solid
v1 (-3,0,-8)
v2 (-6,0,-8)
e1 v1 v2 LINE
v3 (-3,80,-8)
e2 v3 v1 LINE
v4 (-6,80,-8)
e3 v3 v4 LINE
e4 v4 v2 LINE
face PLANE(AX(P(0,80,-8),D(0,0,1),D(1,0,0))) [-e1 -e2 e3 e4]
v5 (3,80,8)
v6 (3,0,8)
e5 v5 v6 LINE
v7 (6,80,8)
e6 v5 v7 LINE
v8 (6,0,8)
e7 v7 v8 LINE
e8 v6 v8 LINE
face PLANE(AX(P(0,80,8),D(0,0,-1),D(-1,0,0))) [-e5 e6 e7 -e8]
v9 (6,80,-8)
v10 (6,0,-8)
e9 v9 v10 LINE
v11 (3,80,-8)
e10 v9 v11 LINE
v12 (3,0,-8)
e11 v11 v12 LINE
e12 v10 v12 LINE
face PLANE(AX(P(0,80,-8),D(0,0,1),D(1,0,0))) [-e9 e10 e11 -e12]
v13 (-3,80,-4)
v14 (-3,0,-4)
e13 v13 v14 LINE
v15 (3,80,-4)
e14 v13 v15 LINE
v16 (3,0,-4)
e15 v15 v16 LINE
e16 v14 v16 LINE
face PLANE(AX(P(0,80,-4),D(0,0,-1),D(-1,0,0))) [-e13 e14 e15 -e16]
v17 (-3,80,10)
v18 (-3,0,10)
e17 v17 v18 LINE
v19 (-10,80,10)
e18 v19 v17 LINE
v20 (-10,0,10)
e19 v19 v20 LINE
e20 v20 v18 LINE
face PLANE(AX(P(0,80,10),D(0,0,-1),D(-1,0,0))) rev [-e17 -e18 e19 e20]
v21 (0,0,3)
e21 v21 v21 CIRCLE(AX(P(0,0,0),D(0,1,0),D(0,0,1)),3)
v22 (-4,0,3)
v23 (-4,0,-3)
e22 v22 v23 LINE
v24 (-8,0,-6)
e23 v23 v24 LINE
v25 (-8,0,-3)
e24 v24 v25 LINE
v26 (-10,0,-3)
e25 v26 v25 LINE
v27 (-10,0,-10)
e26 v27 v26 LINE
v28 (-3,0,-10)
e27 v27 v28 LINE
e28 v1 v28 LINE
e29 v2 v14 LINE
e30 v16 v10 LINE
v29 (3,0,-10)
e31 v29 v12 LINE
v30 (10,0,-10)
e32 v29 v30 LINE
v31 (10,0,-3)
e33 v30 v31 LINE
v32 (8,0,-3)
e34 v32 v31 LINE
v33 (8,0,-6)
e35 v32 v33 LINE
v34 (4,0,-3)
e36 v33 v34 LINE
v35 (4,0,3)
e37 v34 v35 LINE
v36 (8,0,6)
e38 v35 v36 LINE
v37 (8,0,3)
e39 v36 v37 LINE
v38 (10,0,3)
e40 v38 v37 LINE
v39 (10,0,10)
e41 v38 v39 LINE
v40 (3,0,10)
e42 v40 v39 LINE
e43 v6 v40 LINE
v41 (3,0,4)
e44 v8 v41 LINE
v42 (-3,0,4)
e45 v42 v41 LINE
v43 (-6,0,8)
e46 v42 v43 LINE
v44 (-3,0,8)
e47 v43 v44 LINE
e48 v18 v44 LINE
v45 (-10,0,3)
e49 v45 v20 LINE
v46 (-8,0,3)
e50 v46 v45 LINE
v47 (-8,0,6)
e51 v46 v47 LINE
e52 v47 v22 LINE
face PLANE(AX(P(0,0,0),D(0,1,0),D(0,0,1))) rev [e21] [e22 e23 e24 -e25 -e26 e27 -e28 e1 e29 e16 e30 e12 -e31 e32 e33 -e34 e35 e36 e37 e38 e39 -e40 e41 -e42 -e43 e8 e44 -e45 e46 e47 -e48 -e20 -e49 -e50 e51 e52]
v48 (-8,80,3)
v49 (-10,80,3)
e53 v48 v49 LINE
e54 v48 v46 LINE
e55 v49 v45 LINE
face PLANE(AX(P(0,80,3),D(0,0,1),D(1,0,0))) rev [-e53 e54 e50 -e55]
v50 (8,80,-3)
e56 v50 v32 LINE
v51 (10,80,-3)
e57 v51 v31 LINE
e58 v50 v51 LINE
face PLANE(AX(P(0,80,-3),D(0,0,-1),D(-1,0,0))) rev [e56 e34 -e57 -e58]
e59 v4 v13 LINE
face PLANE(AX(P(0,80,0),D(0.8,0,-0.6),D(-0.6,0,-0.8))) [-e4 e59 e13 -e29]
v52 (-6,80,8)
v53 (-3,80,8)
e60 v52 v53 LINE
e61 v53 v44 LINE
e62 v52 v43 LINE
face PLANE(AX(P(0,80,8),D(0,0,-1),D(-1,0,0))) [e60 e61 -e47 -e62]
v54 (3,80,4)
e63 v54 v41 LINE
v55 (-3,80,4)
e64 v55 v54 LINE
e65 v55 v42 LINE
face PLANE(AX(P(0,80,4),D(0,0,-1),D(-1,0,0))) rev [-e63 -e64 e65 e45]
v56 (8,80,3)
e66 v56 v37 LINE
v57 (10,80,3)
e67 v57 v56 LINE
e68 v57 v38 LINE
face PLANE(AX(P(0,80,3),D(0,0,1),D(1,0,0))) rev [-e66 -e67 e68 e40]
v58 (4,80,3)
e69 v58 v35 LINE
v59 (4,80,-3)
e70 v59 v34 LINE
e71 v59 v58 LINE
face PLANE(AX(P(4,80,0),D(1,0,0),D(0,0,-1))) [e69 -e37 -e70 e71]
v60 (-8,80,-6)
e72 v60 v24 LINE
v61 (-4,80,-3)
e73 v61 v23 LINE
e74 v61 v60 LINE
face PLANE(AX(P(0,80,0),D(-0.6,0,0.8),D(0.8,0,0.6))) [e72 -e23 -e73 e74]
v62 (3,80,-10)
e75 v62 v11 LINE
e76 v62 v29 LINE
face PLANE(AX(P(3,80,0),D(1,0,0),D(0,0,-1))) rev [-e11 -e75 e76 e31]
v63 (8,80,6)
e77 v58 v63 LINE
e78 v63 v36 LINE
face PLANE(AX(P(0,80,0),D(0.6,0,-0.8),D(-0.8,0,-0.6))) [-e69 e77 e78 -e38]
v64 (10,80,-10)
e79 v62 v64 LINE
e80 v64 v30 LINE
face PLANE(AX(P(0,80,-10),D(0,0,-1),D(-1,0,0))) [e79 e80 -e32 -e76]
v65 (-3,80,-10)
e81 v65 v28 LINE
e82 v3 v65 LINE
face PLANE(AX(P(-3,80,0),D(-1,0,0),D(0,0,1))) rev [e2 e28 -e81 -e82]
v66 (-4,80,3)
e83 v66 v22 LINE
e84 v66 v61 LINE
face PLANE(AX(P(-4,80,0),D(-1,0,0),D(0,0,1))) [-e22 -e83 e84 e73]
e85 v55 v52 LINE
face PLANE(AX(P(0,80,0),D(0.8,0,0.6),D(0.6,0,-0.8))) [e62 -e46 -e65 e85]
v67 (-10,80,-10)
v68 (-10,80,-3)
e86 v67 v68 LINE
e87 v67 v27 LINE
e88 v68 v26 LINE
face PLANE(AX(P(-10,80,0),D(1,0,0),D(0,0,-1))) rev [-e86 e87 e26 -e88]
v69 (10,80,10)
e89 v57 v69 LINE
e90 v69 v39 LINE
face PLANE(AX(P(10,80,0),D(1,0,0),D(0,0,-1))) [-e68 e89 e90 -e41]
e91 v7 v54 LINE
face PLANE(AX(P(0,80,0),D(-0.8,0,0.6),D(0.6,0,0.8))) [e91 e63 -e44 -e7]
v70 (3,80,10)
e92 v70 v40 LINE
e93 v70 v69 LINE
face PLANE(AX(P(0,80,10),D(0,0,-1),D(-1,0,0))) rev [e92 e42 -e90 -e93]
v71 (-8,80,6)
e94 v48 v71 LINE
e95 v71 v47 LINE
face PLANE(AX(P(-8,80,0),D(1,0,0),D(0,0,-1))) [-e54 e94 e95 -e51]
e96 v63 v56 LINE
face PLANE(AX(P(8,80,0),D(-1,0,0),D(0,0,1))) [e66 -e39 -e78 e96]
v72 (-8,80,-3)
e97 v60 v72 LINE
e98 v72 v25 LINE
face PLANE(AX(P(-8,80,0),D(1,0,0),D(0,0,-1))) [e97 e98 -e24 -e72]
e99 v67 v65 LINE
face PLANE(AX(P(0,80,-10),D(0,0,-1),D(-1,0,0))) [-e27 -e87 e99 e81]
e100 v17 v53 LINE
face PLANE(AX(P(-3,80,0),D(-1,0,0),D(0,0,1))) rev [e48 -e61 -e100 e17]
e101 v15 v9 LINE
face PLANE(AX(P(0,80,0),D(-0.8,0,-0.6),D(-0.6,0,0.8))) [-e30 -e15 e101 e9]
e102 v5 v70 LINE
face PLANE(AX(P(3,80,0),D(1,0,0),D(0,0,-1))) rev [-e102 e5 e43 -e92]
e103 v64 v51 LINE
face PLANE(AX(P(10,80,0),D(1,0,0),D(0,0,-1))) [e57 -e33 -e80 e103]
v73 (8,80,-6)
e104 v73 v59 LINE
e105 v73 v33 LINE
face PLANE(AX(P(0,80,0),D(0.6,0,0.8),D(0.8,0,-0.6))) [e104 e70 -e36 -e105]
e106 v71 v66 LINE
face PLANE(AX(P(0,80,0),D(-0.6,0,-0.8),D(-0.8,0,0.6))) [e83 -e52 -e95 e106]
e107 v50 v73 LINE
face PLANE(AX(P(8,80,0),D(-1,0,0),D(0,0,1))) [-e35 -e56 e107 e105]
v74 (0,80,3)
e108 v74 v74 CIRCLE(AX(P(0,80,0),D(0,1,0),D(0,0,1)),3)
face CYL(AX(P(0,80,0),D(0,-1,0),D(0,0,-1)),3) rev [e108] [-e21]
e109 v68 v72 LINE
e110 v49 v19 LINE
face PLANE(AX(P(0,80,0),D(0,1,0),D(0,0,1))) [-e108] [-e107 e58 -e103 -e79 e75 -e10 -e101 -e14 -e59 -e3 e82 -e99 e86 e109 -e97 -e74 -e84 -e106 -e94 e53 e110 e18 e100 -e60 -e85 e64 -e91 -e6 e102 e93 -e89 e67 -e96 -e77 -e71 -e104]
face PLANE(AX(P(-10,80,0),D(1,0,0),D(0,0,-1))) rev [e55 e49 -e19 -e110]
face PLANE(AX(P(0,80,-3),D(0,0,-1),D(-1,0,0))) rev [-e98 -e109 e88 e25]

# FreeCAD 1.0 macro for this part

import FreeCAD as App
import Part
import Sketcher
from FreeCAD import Vector
Q = App.Units.Quantity


def add_polygon(sketch, points):
    """Adds a closed chain of lines whose ends are joined by coincident constraints."""
    first, n = sketch.GeometryCount, len(points)
    for a, b in zip(points, points[1:] + points[:1]):
        sketch.addGeometry(Part.LineSegment(App.Vector(*a, 0), App.Vector(*b, 0)), False)
    for i in range(n):
        sketch.addConstraint(Sketcher.Constraint("Coincident", first + i, 2, first + (i + 1) % n, 1))

doc = App.newDocument("Part")
body = doc.addObject("PartDesign::Body", "Body")

sketch1 = doc.addObject("Sketcher::SketchObject", "Sketch")
body.addObject(sketch1)
sketch1.AttachmentSupport = (doc.XZ_Plane, [""])
sketch1.MapMode = "FlatFace"
add_polygon(sketch1, [(10, -10), (3, -10), (3, -8), (6, -8), (3, -4), (-3, -4), (-6, -8), (-3, -8), (-3, -10), (-10, -10), (-10, -3), (-8, -3), (-8, -6), (-4, -3), (-4, 3), (-8, 6), (-8, 3), (-10, 3), (-10, 10), (-3, 10), (-3, 8), (-6, 8), (-3, 4), (3, 4), (6, 8), (3, 8), (3, 10), (10, 10), (10, 3), (8, 3), (8, 6), (4, 3), (4, -3), (8, -6), (8, -3), (10, -3)])
sketch1.addGeometry(Part.Circle(Vector(0, 0, 0), Vector(0, 0, 1), 3), False)
sketch1.addConstraint([
    Sketcher.Constraint("Horizontal", 0),
    Sketcher.Constraint("Vertical", 1),
    Sketcher.Constraint("Horizontal", 2),
    Sketcher.Constraint("Horizontal", 4),
    Sketcher.Constraint("Horizontal", 6),
    Sketcher.Constraint("Vertical", 7),
    Sketcher.Constraint("Horizontal", 8),
    Sketcher.Constraint("Vertical", 9),
    Sketcher.Constraint("Horizontal", 10),
    Sketcher.Constraint("Vertical", 11),
    Sketcher.Constraint("Vertical", 13),
    Sketcher.Constraint("Vertical", 15),
    Sketcher.Constraint("Horizontal", 16),
    Sketcher.Constraint("Vertical", 17),
    Sketcher.Constraint("Horizontal", 18),
    Sketcher.Constraint("Vertical", 19),
    Sketcher.Constraint("Horizontal", 20),
    Sketcher.Constraint("Horizontal", 22),
    Sketcher.Constraint("Horizontal", 24),
    Sketcher.Constraint("Vertical", 25),
    Sketcher.Constraint("Horizontal", 26),
    Sketcher.Constraint("Vertical", 27),
    Sketcher.Constraint("Horizontal", 28),
    Sketcher.Constraint("Vertical", 29),
    Sketcher.Constraint("Vertical", 31),
    Sketcher.Constraint("Vertical", 33),
    Sketcher.Constraint("Horizontal", 34),
    Sketcher.Constraint("Vertical", 35),
    Sketcher.Constraint("Coincident", 36, 3, -1, 1),
    Sketcher.Constraint("Symmetric", 0, 2, 18, 2, -1, 1),
    Sketcher.Constraint("Symmetric", 2, 2, 20, 2, -1, 1),
    Sketcher.Constraint("Symmetric", 3, 2, 21, 2, -1, 1),
    Sketcher.Constraint("Symmetric", 5, 2, 23, 2, -1, 1),
    Sketcher.Constraint("Symmetric", 7, 2, 25, 2, -1, 1),
    Sketcher.Constraint("Symmetric", 9, 2, 27, 2, -1, 1),
    Sketcher.Constraint("Symmetric", 11, 2, 29, 2, -1, 1),
    Sketcher.Constraint("Symmetric", 12, 2, 30, 2, -1, 1),
    Sketcher.Constraint("Symmetric", 14, 2, 32, 2, -1, 1),
    Sketcher.Constraint("Symmetric", 16, 2, 34, 2, -1, 1),
    Sketcher.Constraint("Symmetric", 2, 2, 5, 2, -2),
    Sketcher.Constraint("Symmetric", 0, 2, 7, 2, -2),
    Sketcher.Constraint("Symmetric", 16, 2, 27, 2, -2),
    Sketcher.Constraint("Symmetric", 14, 2, 29, 2, -2),
    Sketcher.Constraint("Perpendicular", 3, 12),
    Sketcher.Constraint("Perpendicular", 5, 14),
    Sketcher.Constraint("Perpendicular", 14, 23),
    Sketcher.Constraint("Perpendicular", 23, 32),
    Sketcher.Constraint("Horizontal", 10, 2, 12, 2),
    Sketcher.Constraint("Horizontal", 13, 2, 15, 2),
    Sketcher.Constraint("Vertical", 1, 2, 3, 2),
    Sketcher.Constraint("Equal", 34, 1),
    Sketcher.Constraint("Equal", 26, 9),
    Sketcher.Constraint("Equal", 24, 11),
    Sketcher.Constraint("Equal", 22, 13),
    Sketcher.Constraint("Diameter", 36, Q("6 mm")),
    Sketcher.Constraint("DistanceX", 0, 2, 0, 1, Q("7 mm")),
    Sketcher.Constraint("DistanceX", 2, 1, 2, 2, Q("3 mm")),
    Sketcher.Constraint("DistanceX", 4, 2, 4, 1, Q("6 mm")),
    Sketcher.Constraint("DistanceX", 10, 1, 10, 2, Q("2 mm")),
    Sketcher.Constraint("Distance", 3, Q("5 mm")),
])
pad1 = doc.addObject("PartDesign::Pad", "Pad")
body.addObject(pad1)
pad1.Profile = sketch1
pad1.Length = 80
pad1.Reversed = True

doc.recompute()
